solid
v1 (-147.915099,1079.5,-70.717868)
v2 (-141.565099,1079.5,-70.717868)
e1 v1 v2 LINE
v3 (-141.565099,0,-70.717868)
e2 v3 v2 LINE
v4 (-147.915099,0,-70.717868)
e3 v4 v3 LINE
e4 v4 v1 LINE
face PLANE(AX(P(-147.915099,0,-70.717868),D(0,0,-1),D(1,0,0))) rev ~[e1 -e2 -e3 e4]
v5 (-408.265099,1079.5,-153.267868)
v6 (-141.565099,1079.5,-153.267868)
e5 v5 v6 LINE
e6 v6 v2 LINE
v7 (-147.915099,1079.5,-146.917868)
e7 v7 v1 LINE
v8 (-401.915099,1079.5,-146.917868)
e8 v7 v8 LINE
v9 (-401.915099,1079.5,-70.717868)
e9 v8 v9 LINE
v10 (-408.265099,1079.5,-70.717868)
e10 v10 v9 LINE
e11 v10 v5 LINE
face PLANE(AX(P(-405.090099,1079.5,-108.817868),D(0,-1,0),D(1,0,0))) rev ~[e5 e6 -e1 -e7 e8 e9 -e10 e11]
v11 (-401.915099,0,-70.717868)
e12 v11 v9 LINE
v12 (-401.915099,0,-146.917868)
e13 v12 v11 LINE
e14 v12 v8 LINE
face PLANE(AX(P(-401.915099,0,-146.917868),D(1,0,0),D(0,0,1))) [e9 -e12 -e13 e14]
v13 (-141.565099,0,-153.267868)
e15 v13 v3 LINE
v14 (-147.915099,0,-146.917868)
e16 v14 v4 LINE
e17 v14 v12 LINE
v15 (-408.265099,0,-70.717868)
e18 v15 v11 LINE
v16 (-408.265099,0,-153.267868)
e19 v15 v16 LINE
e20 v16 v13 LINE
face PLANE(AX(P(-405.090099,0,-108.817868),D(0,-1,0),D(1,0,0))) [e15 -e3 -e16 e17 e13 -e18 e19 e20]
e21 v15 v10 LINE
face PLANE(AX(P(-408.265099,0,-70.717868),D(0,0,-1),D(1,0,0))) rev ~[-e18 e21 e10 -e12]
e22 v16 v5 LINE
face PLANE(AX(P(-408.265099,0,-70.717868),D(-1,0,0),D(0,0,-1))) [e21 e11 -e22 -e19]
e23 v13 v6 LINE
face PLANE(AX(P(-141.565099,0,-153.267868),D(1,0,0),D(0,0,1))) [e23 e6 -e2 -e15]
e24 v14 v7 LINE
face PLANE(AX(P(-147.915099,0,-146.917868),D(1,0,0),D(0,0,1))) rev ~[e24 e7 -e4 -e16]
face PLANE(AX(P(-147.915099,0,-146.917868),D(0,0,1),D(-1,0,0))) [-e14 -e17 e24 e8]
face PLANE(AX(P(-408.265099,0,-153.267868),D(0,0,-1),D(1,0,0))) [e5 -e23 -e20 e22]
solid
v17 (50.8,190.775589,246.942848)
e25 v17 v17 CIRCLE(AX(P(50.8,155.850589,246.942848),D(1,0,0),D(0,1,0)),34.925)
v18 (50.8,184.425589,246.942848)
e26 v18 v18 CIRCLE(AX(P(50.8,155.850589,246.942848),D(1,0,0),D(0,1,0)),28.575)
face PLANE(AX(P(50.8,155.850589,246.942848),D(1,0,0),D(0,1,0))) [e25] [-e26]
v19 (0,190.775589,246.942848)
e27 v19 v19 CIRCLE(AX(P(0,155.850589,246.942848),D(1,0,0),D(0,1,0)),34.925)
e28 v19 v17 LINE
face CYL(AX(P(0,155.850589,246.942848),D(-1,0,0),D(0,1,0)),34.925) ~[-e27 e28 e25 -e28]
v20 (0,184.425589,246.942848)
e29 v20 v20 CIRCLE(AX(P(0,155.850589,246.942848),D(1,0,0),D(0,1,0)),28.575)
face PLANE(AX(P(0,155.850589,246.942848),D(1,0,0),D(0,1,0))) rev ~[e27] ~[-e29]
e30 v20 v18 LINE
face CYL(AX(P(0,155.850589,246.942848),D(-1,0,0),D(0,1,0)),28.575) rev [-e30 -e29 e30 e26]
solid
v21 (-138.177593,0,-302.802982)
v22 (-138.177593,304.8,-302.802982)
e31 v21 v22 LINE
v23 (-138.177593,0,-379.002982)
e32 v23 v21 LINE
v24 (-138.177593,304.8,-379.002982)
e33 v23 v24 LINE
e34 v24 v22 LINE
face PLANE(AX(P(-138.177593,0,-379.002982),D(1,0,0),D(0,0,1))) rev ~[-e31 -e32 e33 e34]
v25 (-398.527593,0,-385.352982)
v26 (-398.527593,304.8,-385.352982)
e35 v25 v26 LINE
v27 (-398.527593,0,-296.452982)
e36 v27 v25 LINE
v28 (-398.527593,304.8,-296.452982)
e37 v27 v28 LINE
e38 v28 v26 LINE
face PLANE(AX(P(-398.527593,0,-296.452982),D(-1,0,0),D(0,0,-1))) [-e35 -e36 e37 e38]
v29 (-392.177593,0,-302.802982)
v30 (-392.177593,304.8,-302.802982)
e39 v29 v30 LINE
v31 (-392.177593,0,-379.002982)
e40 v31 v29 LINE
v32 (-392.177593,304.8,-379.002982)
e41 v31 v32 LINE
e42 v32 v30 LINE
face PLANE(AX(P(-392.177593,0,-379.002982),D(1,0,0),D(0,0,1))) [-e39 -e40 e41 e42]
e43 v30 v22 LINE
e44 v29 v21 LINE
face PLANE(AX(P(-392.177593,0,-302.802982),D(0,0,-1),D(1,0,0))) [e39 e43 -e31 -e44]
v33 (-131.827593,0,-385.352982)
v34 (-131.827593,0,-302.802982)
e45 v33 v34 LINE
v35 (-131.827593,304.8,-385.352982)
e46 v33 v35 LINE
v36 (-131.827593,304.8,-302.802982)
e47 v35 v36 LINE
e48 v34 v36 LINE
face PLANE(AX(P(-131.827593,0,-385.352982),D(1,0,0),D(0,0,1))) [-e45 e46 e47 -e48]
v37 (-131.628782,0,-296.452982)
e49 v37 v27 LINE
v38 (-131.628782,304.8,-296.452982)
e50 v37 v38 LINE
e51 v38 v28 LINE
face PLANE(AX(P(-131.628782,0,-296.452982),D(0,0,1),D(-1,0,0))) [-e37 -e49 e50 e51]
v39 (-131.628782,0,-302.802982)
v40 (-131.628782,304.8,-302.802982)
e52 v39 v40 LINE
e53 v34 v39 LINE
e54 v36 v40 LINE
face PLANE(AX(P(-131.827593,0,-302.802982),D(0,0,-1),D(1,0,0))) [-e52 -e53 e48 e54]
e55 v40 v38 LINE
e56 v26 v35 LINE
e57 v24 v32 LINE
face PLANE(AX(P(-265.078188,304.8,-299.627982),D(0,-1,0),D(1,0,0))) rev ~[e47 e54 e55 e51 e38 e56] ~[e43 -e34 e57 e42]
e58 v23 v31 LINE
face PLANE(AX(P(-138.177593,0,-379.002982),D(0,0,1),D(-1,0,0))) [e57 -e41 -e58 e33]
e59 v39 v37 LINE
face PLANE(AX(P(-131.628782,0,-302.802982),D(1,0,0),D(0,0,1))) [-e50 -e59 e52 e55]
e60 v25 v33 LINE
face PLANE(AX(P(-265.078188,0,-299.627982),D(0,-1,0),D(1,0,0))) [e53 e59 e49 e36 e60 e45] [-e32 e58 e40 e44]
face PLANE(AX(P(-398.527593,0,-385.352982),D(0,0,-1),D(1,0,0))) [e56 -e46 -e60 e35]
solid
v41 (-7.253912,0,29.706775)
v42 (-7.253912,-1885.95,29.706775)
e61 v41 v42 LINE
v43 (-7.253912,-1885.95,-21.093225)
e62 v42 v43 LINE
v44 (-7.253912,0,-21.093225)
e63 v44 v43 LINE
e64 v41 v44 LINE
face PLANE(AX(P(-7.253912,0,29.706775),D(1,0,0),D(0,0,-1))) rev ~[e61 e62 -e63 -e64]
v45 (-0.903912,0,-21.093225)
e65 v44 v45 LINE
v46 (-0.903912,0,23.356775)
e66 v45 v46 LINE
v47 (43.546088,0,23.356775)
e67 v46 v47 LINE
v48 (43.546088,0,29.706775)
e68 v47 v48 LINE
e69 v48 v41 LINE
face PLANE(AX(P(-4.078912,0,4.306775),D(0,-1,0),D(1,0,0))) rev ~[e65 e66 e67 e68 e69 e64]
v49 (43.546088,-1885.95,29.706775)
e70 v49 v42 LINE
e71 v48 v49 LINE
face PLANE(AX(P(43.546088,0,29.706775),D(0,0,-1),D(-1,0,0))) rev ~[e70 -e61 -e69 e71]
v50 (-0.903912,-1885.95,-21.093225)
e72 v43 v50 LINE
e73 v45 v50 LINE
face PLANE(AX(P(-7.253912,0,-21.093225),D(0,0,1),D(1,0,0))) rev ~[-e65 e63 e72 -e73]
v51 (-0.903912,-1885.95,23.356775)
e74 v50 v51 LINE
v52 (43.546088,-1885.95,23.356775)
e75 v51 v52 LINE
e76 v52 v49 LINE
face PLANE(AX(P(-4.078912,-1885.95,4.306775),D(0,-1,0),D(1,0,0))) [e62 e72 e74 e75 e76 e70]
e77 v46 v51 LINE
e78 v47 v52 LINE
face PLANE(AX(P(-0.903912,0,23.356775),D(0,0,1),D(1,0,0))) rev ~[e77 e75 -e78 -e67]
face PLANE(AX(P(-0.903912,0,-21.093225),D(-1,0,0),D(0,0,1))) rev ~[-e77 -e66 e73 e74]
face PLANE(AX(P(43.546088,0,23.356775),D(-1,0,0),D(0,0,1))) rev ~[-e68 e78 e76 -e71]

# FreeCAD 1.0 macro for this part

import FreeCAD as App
import Part
import Sketcher
from FreeCAD import Vector
Q = App.Units.Quantity


def add_polygon(sketch, points):
    """Adds a closed chain of lines whose ends are joined by coincident constraints."""
    first, n = sketch.GeometryCount, len(points)
    for a, b in zip(points, points[1:] + points[:1]):
        sketch.addGeometry(Part.LineSegment(App.Vector(*a, 0), App.Vector(*b, 0)), False)
    for i in range(n):
        sketch.addConstraint(Sketcher.Constraint("Coincident", first + i, 2, first + (i + 1) % n, 1))

doc = App.newDocument("Part")
params = doc.addObject("Spreadsheet::Sheet", "Params")
for row, (alias, value) in enumerate([
    ("sketch1_width", "2 in"),
    ("sketch1_width2", "0.25 in"),
    ("pad1_length", "74.25 in"),
    ("sketch2_diameter", "2.75 in"),
    ("sketch2_diameter2", "2.25 in"),
    ("pad2_length", "2 in"),
    ("sketch3_width", "10 in"),
    ("sketch3_height", "3 in"),
    ("sketch3_width2", "10.5 in"),
    ("sketch3_height2", "3.25 in"),
    ("pad3_length", "42.5 in"),
    ("sketch4_width", "10 in"),
    ("sketch4_height", "3 in"),
    ("sketch4_width2", "10.5 in"),
    ("sketch4_height2", "3.5 in"),
    ("sketch4_height3", "3.25 in"),
    ("pad4_length", "12 in"),
], start=1):
    params.set(f"A{row}", alias)
    params.set(f"B{row}", "=" + value)
    params.setAlias(f"B{row}", alias)

body = doc.addObject("PartDesign::Body", "Body")

# Sketch on XZ plane
sketch1 = doc.addObject("Sketcher::SketchObject", "Sketch")
body.addObject(sketch1)
sketch1.AttachmentSupport = (doc.XZ_Plane, [""])
sketch1.MapMode = "FlatFace"
add_polygon(sketch1, [(-7, 30), (-7, -21), (-1, -21), (-1, 23), (44, 23), (44, 30)])  # lines 0-5
sketch1.addConstraint(Sketcher.Constraint("Vertical", 0))
sketch1.addConstraint(Sketcher.Constraint("Horizontal", 1))
sketch1.addConstraint(Sketcher.Constraint("Vertical", 2))
sketch1.addConstraint(Sketcher.Constraint("Horizontal", 3))
sketch1.addConstraint(Sketcher.Constraint("Vertical", 4))
sketch1.addConstraint(Sketcher.Constraint("Horizontal", 5))
sketch1.addConstraint(Sketcher.Constraint("Equal", 5, 0))
sketch1.addConstraint(Sketcher.Constraint("Equal", 3, 2))
sketch1.addConstraint(Sketcher.Constraint("DistanceX", 5, 2, 5, 1, Q("2 in")))
sketch1.addConstraint(Sketcher.Constraint("DistanceX", 1, 1, 1, 2, Q("0.25 in")))
sketch1.addConstraint(Sketcher.Constraint("DistanceX", 0, 2, -1, 1, 7.253912))
sketch1.addConstraint(Sketcher.Constraint("DistanceY", 0, 2, -1, 1, 21.093225))
sketch1.setExpression("Constraints[14]", "Params.sketch1_width")
sketch1.setExpression("Constraints[15]", "Params.sketch1_width2")
pad1 = doc.addObject("PartDesign::Pad", "Pad")
body.addObject(pad1)
pad1.Profile = sketch1
pad1.setExpression("Length", "Params.pad1_length")
body2 = doc.addObject("PartDesign::Body", "Body001")

# Sketch on YZ plane
sketch2 = doc.addObject("Sketcher::SketchObject", "Sketch001")
body2.addObject(sketch2)
sketch2.AttachmentSupport = (doc.getObject("YZ_Plane001"), [""])
sketch2.MapMode = "FlatFace"
sketch2.addGeometry(Part.Circle(Vector(156, 247, 0), Vector(0, 0, 1), 35), False)
sketch2.addGeometry(Part.Circle(Vector(156, 247, 0), Vector(0, 0, 1), 29), False)
sketch2.addConstraint(Sketcher.Constraint("Coincident", 1, 3, 0, 3))
sketch2.addConstraint(Sketcher.Constraint("Diameter", 0, Q("2.75 in")))
sketch2.addConstraint(Sketcher.Constraint("Diameter", 1, Q("2.25 in")))
sketch2.addConstraint(Sketcher.Constraint("DistanceX", -1, 1, 0, 3, 155.850589))
sketch2.addConstraint(Sketcher.Constraint("DistanceY", -1, 1, 0, 3, 246.942848))
sketch2.setExpression("Constraints[1]", "Params.sketch2_diameter")
sketch2.setExpression("Constraints[2]", "Params.sketch2_diameter2")
pad2 = doc.addObject("PartDesign::Pad", "Pad001")
body2.addObject(pad2)
pad2.Profile = sketch2
pad2.setExpression("Length", "Params.pad2_length")
body3 = doc.addObject("PartDesign::Body", "Body002")

# Sketch on XZ plane
sketch3 = doc.addObject("Sketcher::SketchObject", "Sketch002")
body3.addObject(sketch3)
sketch3.AttachmentSupport = (doc.getObject("XZ_Plane002"), [""])
sketch3.MapMode = "FlatFace"
add_polygon(sketch3, [(-408, -71), (-408, -153), (-142, -153), (-142, -71), (-148, -71), (-148, -147), (-402, -147), (-402, -71)])  # lines 0-7
sketch3.addConstraint(Sketcher.Constraint("Vertical", 0))
sketch3.addConstraint(Sketcher.Constraint("Horizontal", 1))
sketch3.addConstraint(Sketcher.Constraint("Vertical", 2))
sketch3.addConstraint(Sketcher.Constraint("Horizontal", 3))
sketch3.addConstraint(Sketcher.Constraint("Vertical", 4))
sketch3.addConstraint(Sketcher.Constraint("Horizontal", 5))
sketch3.addConstraint(Sketcher.Constraint("Vertical", 6))
sketch3.addConstraint(Sketcher.Constraint("Horizontal", 7))
sketch3.addConstraint(Sketcher.Constraint("Horizontal", 3, 2, 6, 2))
sketch3.addConstraint(Sketcher.Constraint("Equal", 3, 7))
sketch3.addConstraint(Sketcher.Constraint("DistanceX", 5, 2, 5, 1, Q("10 in")))
sketch3.addConstraint(Sketcher.Constraint("DistanceY", 4, 2, 4, 1, Q("3 in")))
sketch3.addConstraint(Sketcher.Constraint("DistanceX", 1, 1, 1, 2, Q("10.5 in")))
sketch3.addConstraint(Sketcher.Constraint("DistanceY", 0, 2, 0, 1, Q("3.25 in")))
sketch3.addConstraint(Sketcher.Constraint("DistanceX", 0, 2, -1, 1, 408.265099))
sketch3.addConstraint(Sketcher.Constraint("DistanceY", 0, 2, -1, 1, 153.267868))
sketch3.setExpression("Constraints[18]", "Params.sketch3_width")
sketch3.setExpression("Constraints[19]", "Params.sketch3_height")
sketch3.setExpression("Constraints[20]", "Params.sketch3_width2")
sketch3.setExpression("Constraints[21]", "Params.sketch3_height2")
pad3 = doc.addObject("PartDesign::Pad", "Pad002")
body3.addObject(pad3)
pad3.Profile = sketch3
pad3.setExpression("Length", "Params.pad3_length")
pad3.Reversed = True
body4 = doc.addObject("PartDesign::Body", "Body003")

# Sketch on XZ plane
sketch4 = doc.addObject("Sketcher::SketchObject", "Sketch003")
body4.addObject(sketch4)
sketch4.AttachmentSupport = (doc.getObject("XZ_Plane003"), [""])
sketch4.MapMode = "FlatFace"
add_polygon(sketch4, [(-398.53, -296.45), (-398.53, -385.35), (-131.83, -385.35), (-131.83, -302.8), (-131.63, -302.8), (-131.63, -296.45)])  # lines 0-5
add_polygon(sketch4, [(-138.18, -379), (-392.18, -379), (-392.18, -302.8), (-138.18, -302.8)])  # lines 6-9
sketch4.addConstraint(Sketcher.Constraint("Vertical", 0))
sketch4.addConstraint(Sketcher.Constraint("Horizontal", 1))
sketch4.addConstraint(Sketcher.Constraint("Vertical", 2))
sketch4.addConstraint(Sketcher.Constraint("Horizontal", 3))
sketch4.addConstraint(Sketcher.Constraint("Vertical", 4))
sketch4.addConstraint(Sketcher.Constraint("Horizontal", 5))
sketch4.addConstraint(Sketcher.Constraint("Horizontal", 6))
sketch4.addConstraint(Sketcher.Constraint("Vertical", 7))
sketch4.addConstraint(Sketcher.Constraint("Horizontal", 8))
sketch4.addConstraint(Sketcher.Constraint("Vertical", 9))
sketch4.addConstraint(Sketcher.Constraint("Horizontal", 3, 2, 7, 2))
sketch4.addConstraint(Sketcher.Constraint("DistanceX", 6, 2, 6, 1, Q("10 in")))
sketch4.addConstraint(Sketcher.Constraint("DistanceY", 7, 1, 7, 2, Q("3 in")))
sketch4.addConstraint(Sketcher.Constraint("DistanceX", 1, 1, 1, 2, Q("10.5 in")))
sketch4.addConstraint(Sketcher.Constraint("DistanceY", 0, 2, 0, 1, Q("3.5 in")))
sketch4.addConstraint(Sketcher.Constraint("DistanceY", 2, 1, 2, 2, Q("3.25 in")))
sketch4.addConstraint(Sketcher.Constraint("DistanceX", 0, 2, 6, 2, Q("0.25 in")))
sketch4.addConstraint(Sketcher.Constraint("DistanceX", 3, 1, 3, 2, 0.198811))
sketch4.addConstraint(Sketcher.Constraint("DistanceY", 0, 2, -1, 1, 385.352982))
sketch4.addConstraint(Sketcher.Constraint("DistanceX", 3, 2, -1, 1, 131.628782))
sketch4.setExpression("Constraints[21]", "Params.sketch4_width")
sketch4.setExpression("Constraints[22]", "Params.sketch4_height")
sketch4.setExpression("Constraints[23]", "Params.sketch4_width2")
sketch4.setExpression("Constraints[24]", "Params.sketch4_height2")
sketch4.setExpression("Constraints[25]", "Params.sketch4_height3")
pad4 = doc.addObject("PartDesign::Pad", "Pad003")
body4.addObject(pad4)
pad4.Profile = sketch4
pad4.setExpression("Length", "Params.pad4_length")
pad4.Reversed = True

doc.recompute()
